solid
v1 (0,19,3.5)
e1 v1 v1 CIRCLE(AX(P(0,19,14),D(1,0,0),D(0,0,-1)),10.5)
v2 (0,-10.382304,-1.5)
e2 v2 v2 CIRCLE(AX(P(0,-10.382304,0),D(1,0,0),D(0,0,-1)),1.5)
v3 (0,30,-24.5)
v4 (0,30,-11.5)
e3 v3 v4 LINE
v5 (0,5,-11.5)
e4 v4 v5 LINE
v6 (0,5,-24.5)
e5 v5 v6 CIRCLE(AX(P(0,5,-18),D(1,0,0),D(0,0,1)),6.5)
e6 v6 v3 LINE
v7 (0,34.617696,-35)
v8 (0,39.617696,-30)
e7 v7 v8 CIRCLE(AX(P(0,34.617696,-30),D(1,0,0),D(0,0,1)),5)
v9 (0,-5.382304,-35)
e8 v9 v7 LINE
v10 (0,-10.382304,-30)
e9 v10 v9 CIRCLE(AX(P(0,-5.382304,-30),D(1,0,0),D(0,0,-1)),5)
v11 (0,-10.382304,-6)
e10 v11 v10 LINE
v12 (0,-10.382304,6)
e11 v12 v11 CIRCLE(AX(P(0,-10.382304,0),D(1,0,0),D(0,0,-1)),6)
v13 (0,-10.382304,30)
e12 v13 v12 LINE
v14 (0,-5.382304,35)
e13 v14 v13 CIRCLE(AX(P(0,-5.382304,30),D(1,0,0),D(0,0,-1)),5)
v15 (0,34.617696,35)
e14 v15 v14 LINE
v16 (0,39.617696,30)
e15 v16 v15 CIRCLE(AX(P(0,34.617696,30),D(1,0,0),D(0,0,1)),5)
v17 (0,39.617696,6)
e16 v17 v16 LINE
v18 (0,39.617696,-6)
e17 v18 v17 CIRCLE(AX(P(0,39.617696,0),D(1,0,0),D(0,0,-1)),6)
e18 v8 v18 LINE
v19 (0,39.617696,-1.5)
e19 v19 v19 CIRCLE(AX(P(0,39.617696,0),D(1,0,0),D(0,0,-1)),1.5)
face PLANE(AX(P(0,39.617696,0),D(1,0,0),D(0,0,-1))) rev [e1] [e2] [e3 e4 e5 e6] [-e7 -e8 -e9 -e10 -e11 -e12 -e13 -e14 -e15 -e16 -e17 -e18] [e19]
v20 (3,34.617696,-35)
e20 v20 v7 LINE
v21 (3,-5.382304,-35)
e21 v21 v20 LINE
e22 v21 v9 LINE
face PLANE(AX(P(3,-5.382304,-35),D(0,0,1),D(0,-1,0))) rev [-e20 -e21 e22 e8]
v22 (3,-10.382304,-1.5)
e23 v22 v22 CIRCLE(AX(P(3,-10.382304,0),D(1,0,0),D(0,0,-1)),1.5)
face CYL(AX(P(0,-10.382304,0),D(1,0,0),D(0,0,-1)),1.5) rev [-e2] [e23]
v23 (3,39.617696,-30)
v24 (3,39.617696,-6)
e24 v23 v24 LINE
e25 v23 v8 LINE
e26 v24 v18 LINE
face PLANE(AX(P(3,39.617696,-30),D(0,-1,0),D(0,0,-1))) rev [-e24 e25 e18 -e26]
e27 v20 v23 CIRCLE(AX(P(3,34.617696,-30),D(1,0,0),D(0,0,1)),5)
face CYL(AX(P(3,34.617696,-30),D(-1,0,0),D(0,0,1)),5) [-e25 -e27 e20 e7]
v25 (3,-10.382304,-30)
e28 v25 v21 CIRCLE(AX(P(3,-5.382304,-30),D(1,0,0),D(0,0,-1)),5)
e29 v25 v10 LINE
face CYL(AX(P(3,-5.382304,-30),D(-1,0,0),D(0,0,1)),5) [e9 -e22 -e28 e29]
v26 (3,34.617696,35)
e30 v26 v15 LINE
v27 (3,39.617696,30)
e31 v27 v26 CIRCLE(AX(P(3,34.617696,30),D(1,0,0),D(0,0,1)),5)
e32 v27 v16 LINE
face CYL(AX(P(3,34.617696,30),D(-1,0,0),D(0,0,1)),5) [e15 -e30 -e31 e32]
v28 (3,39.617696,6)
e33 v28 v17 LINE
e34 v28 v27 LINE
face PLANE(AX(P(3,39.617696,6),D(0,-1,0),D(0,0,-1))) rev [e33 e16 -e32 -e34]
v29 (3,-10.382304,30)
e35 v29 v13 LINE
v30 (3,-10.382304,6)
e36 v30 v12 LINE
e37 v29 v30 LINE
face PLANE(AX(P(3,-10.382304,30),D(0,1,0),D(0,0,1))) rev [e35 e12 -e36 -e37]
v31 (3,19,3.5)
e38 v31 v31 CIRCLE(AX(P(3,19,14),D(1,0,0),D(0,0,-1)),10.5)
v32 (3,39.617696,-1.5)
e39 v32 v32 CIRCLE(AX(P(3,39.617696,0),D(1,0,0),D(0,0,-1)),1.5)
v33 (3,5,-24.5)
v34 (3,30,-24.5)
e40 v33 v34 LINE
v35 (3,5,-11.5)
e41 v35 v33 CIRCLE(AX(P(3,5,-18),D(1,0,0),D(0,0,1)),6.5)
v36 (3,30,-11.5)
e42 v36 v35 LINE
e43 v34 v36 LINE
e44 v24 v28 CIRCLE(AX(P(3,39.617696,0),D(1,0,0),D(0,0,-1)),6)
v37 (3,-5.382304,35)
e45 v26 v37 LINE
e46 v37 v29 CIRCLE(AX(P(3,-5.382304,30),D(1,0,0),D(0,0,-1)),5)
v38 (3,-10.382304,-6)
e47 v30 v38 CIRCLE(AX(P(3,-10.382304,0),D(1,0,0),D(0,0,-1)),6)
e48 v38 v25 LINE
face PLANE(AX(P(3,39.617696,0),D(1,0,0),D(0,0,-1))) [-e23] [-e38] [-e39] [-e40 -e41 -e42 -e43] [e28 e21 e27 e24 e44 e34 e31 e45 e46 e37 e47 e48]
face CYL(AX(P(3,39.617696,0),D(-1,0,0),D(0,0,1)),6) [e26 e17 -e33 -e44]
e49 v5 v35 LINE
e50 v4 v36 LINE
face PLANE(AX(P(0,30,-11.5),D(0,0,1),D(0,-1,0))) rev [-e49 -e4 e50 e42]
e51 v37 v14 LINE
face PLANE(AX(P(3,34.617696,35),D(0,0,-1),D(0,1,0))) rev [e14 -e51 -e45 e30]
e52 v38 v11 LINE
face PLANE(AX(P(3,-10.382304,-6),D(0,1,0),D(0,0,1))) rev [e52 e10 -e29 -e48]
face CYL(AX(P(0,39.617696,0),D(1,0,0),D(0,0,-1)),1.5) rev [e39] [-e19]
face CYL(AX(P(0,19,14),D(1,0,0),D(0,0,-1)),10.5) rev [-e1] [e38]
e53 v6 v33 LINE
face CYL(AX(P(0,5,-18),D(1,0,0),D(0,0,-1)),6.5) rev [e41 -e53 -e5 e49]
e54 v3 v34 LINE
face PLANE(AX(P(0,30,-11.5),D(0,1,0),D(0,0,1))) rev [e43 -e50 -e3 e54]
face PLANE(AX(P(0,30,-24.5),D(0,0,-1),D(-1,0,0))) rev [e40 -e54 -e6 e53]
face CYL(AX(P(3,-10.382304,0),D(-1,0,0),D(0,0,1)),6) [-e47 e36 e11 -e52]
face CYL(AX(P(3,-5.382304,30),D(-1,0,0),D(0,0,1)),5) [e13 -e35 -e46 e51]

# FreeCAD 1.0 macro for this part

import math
import FreeCAD as App
import Part
import Sketcher
Q = App.Units.Quantity

doc = App.newDocument("Part")
body = doc.addObject("PartDesign::Body", "Body")

# Sketch on YZ plane
sketch1 = body.newObject("Sketcher::SketchObject", "Sketch")
sketch1.AttachmentSupport = (doc.getObject("YZ_Plane"), [""])
sketch1.MapMode = "FlatFace"
sketch1.addGeometry(Part.LineSegment(App.Vector(-5, -35, 0), App.Vector(35, -35, 0)), False)
sketch1.addGeometry(Part.ArcOfCircle(Part.Circle(App.Vector(35, -30, 0), App.Vector(0, 0, 1), 5), math.radians(-90), math.radians(0)), False)
sketch1.addGeometry(Part.LineSegment(App.Vector(40, -30, 0), App.Vector(40, -6, 0)), False)
sketch1.addGeometry(Part.ArcOfCircle(Part.Circle(App.Vector(40, 0, 0), App.Vector(0, 0, 1), 6), math.radians(-90), math.radians(90)), False)
sketch1.addGeometry(Part.LineSegment(App.Vector(40, 6, 0), App.Vector(40, 30, 0)), False)
sketch1.addGeometry(Part.ArcOfCircle(Part.Circle(App.Vector(35, 30, 0), App.Vector(0, 0, 1), 5), math.radians(0), math.radians(90)), False)
sketch1.addGeometry(Part.LineSegment(App.Vector(35, 35, 0), App.Vector(-5, 35, 0)), False)
sketch1.addGeometry(Part.ArcOfCircle(Part.Circle(App.Vector(-5, 30, 0), App.Vector(0, 0, 1), 5), math.radians(90), math.radians(180)), False)
sketch1.addGeometry(Part.LineSegment(App.Vector(-10, 30, 0), App.Vector(-10, 6, 0)), False)
sketch1.addGeometry(Part.ArcOfCircle(Part.Circle(App.Vector(-10, 0, 0), App.Vector(0, 0, 1), 6), math.radians(90), math.radians(270)), False)
sketch1.addGeometry(Part.LineSegment(App.Vector(-10, -6, 0), App.Vector(-10, -30, 0)), False)
sketch1.addGeometry(Part.ArcOfCircle(Part.Circle(App.Vector(-5, -30, 0), App.Vector(0, 0, 1), 5), math.radians(180), math.radians(270)), False)
sketch1.addConstraint(Sketcher.Constraint("Tangent", 0, 2, 1, 1))
sketch1.addConstraint(Sketcher.Constraint("Tangent", 1, 2, 2, 1))
sketch1.addConstraint(Sketcher.Constraint("Coincident", 2, 2, 3, 1))
sketch1.addConstraint(Sketcher.Constraint("Coincident", 3, 2, 4, 1))
sketch1.addConstraint(Sketcher.Constraint("Tangent", 4, 2, 5, 1))
sketch1.addConstraint(Sketcher.Constraint("Tangent", 5, 2, 6, 1))
sketch1.addConstraint(Sketcher.Constraint("Tangent", 6, 2, 7, 1))
sketch1.addConstraint(Sketcher.Constraint("Tangent", 7, 2, 8, 1))
sketch1.addConstraint(Sketcher.Constraint("Coincident", 8, 2, 9, 1))
sketch1.addConstraint(Sketcher.Constraint("Coincident", 9, 2, 10, 1))
sketch1.addConstraint(Sketcher.Constraint("Tangent", 10, 2, 11, 1))
sketch1.addConstraint(Sketcher.Constraint("Tangent", 11, 2, 0, 1))
sketch1.addConstraint(Sketcher.Constraint("Horizontal", 0))
sketch1.addConstraint(Sketcher.Constraint("Vertical", 2))
sketch1.addConstraint(Sketcher.Constraint("Vertical", 4))
sketch1.addConstraint(Sketcher.Constraint("Horizontal", 6))
sketch1.addConstraint(Sketcher.Constraint("Vertical", 8))
sketch1.addConstraint(Sketcher.Constraint("Vertical", 10))
sketch1.addConstraint(Sketcher.Constraint("Equal", 1, 5))
sketch1.addConstraint(Sketcher.Constraint("Equal", 5, 7))
sketch1.addConstraint(Sketcher.Constraint("Equal", 3, 9))
sketch1.addConstraint(Sketcher.Constraint("Equal", 7, 11))
sketch1.addConstraint(Sketcher.Constraint("Symmetric", 1, 3, 5, 3, -1))
sketch1.addConstraint(Sketcher.Constraint("Symmetric", 8, 2, 9, 2, -1))
sketch1.addConstraint(Sketcher.Constraint("PointOnObject", 3, 3, -1))
sketch1.addConstraint(Sketcher.Constraint("Vertical", 3, 3, 1, 2))
sketch1.addConstraint(Sketcher.Constraint("Vertical", 9, 3, 7, 2))
sketch1.addConstraint(Sketcher.Constraint("Radius", 1, Q("5 mm")))
sketch1.addConstraint(Sketcher.Constraint("Radius", 3, Q("6 mm")))
sketch1.addConstraint(Sketcher.Constraint("DistanceX", 0, 1, 0, 2, Q("40 mm")))
sketch1.addConstraint(Sketcher.Constraint("DistanceY", 2, 1, 2, 2, Q("24 mm")))
sketch1.addConstraint(Sketcher.Constraint("DistanceX", -1, 1, 1, 3, Q("34.617696 mm")))
pad1 = body.newObject("PartDesign::Pad", "Pad")
pad1.Profile = sketch1
pad1.Length = 3

# Sketch on YZ plane
sketch2 = body.newObject("Sketcher::SketchObject", "Sketch001")
sketch2.AttachmentSupport = (doc.getObject("YZ_Plane"), [""])
sketch2.MapMode = "FlatFace"
sketch2.AttachmentOffset = App.Placement(App.Vector(0, 0, 3), App.Rotation())
sketch2.addGeometry(Part.Circle(App.Vector(39.6, 0, 0), App.Vector(0, 0, 1), 1.5), False)
sketch2.addGeometry(Part.Circle(App.Vector(-10.4, 0, 0), App.Vector(0, 0, 1), 1.5), False)
sketch2.addGeometry(Part.Circle(App.Vector(19, 14, 0), App.Vector(0, 0, 1), 10.5), False)
sketch2.addGeometry(Part.LineSegment(App.Vector(30, -24.5, 0), App.Vector(30, -11.5, 0)), False)
sketch2.addGeometry(Part.LineSegment(App.Vector(30, -11.5, 0), App.Vector(5, -11.5, 0)), False)
sketch2.addGeometry(Part.ArcOfCircle(Part.Circle(App.Vector(5, -18, 0), App.Vector(0, 0, 1), 6.5), math.radians(90), math.radians(270)), False)
sketch2.addGeometry(Part.LineSegment(App.Vector(5, -24.5, 0), App.Vector(30, -24.5, 0)), False)
sketch2.addConstraint(Sketcher.Constraint("Coincident", 3, 2, 4, 1))
sketch2.addConstraint(Sketcher.Constraint("Tangent", 4, 2, 5, 1))
sketch2.addConstraint(Sketcher.Constraint("Tangent", 5, 2, 6, 1))
sketch2.addConstraint(Sketcher.Constraint("Coincident", 6, 2, 3, 1))
sketch2.addConstraint(Sketcher.Constraint("Vertical", 3))
sketch2.addConstraint(Sketcher.Constraint("Horizontal", 4))
sketch2.addConstraint(Sketcher.Constraint("Horizontal", 6))
sketch2.addConstraint(Sketcher.Constraint("Equal", 0, 1))
sketch2.addConstraint(Sketcher.Constraint("PointOnObject", 0, 3, -1))
sketch2.addConstraint(Sketcher.Constraint("PointOnObject", 1, 3, -1))
sketch2.addConstraint(Sketcher.Constraint("Diameter", 0, Q("3 mm")))
sketch2.addConstraint(Sketcher.Constraint("Diameter", 2, Q("21 mm")))
sketch2.addConstraint(Sketcher.Constraint("Radius", 5, Q("6.5 mm")))
sketch2.addConstraint(Sketcher.Constraint("DistanceX", 4, 2, 4, 1, Q("25 mm")))
sketch2.addConstraint(Sketcher.Constraint("DistanceX", -1, 1, 2, 3, Q("19 mm")))
sketch2.addConstraint(Sketcher.Constraint("DistanceY", -1, 1, 2, 3, Q("14 mm")))
sketch2.addConstraint(Sketcher.Constraint("DistanceX", -1, 1, 5, 3, Q("5 mm")))
sketch2.addConstraint(Sketcher.Constraint("DistanceY", 5, 3, -1, 1, Q("18 mm")))
sketch2.addConstraint(Sketcher.Constraint("DistanceX", 1, 3, 0, 3, Q("50 mm")))
sketch2.addConstraint(Sketcher.Constraint("DistanceX", -1, 1, 0, 3, Q("39.617696 mm")))
pocket1 = body.newObject("PartDesign::Pocket", "Pocket")
pocket1.Profile = sketch2
pocket1.Type = "ThroughAll"

doc.recompute()
